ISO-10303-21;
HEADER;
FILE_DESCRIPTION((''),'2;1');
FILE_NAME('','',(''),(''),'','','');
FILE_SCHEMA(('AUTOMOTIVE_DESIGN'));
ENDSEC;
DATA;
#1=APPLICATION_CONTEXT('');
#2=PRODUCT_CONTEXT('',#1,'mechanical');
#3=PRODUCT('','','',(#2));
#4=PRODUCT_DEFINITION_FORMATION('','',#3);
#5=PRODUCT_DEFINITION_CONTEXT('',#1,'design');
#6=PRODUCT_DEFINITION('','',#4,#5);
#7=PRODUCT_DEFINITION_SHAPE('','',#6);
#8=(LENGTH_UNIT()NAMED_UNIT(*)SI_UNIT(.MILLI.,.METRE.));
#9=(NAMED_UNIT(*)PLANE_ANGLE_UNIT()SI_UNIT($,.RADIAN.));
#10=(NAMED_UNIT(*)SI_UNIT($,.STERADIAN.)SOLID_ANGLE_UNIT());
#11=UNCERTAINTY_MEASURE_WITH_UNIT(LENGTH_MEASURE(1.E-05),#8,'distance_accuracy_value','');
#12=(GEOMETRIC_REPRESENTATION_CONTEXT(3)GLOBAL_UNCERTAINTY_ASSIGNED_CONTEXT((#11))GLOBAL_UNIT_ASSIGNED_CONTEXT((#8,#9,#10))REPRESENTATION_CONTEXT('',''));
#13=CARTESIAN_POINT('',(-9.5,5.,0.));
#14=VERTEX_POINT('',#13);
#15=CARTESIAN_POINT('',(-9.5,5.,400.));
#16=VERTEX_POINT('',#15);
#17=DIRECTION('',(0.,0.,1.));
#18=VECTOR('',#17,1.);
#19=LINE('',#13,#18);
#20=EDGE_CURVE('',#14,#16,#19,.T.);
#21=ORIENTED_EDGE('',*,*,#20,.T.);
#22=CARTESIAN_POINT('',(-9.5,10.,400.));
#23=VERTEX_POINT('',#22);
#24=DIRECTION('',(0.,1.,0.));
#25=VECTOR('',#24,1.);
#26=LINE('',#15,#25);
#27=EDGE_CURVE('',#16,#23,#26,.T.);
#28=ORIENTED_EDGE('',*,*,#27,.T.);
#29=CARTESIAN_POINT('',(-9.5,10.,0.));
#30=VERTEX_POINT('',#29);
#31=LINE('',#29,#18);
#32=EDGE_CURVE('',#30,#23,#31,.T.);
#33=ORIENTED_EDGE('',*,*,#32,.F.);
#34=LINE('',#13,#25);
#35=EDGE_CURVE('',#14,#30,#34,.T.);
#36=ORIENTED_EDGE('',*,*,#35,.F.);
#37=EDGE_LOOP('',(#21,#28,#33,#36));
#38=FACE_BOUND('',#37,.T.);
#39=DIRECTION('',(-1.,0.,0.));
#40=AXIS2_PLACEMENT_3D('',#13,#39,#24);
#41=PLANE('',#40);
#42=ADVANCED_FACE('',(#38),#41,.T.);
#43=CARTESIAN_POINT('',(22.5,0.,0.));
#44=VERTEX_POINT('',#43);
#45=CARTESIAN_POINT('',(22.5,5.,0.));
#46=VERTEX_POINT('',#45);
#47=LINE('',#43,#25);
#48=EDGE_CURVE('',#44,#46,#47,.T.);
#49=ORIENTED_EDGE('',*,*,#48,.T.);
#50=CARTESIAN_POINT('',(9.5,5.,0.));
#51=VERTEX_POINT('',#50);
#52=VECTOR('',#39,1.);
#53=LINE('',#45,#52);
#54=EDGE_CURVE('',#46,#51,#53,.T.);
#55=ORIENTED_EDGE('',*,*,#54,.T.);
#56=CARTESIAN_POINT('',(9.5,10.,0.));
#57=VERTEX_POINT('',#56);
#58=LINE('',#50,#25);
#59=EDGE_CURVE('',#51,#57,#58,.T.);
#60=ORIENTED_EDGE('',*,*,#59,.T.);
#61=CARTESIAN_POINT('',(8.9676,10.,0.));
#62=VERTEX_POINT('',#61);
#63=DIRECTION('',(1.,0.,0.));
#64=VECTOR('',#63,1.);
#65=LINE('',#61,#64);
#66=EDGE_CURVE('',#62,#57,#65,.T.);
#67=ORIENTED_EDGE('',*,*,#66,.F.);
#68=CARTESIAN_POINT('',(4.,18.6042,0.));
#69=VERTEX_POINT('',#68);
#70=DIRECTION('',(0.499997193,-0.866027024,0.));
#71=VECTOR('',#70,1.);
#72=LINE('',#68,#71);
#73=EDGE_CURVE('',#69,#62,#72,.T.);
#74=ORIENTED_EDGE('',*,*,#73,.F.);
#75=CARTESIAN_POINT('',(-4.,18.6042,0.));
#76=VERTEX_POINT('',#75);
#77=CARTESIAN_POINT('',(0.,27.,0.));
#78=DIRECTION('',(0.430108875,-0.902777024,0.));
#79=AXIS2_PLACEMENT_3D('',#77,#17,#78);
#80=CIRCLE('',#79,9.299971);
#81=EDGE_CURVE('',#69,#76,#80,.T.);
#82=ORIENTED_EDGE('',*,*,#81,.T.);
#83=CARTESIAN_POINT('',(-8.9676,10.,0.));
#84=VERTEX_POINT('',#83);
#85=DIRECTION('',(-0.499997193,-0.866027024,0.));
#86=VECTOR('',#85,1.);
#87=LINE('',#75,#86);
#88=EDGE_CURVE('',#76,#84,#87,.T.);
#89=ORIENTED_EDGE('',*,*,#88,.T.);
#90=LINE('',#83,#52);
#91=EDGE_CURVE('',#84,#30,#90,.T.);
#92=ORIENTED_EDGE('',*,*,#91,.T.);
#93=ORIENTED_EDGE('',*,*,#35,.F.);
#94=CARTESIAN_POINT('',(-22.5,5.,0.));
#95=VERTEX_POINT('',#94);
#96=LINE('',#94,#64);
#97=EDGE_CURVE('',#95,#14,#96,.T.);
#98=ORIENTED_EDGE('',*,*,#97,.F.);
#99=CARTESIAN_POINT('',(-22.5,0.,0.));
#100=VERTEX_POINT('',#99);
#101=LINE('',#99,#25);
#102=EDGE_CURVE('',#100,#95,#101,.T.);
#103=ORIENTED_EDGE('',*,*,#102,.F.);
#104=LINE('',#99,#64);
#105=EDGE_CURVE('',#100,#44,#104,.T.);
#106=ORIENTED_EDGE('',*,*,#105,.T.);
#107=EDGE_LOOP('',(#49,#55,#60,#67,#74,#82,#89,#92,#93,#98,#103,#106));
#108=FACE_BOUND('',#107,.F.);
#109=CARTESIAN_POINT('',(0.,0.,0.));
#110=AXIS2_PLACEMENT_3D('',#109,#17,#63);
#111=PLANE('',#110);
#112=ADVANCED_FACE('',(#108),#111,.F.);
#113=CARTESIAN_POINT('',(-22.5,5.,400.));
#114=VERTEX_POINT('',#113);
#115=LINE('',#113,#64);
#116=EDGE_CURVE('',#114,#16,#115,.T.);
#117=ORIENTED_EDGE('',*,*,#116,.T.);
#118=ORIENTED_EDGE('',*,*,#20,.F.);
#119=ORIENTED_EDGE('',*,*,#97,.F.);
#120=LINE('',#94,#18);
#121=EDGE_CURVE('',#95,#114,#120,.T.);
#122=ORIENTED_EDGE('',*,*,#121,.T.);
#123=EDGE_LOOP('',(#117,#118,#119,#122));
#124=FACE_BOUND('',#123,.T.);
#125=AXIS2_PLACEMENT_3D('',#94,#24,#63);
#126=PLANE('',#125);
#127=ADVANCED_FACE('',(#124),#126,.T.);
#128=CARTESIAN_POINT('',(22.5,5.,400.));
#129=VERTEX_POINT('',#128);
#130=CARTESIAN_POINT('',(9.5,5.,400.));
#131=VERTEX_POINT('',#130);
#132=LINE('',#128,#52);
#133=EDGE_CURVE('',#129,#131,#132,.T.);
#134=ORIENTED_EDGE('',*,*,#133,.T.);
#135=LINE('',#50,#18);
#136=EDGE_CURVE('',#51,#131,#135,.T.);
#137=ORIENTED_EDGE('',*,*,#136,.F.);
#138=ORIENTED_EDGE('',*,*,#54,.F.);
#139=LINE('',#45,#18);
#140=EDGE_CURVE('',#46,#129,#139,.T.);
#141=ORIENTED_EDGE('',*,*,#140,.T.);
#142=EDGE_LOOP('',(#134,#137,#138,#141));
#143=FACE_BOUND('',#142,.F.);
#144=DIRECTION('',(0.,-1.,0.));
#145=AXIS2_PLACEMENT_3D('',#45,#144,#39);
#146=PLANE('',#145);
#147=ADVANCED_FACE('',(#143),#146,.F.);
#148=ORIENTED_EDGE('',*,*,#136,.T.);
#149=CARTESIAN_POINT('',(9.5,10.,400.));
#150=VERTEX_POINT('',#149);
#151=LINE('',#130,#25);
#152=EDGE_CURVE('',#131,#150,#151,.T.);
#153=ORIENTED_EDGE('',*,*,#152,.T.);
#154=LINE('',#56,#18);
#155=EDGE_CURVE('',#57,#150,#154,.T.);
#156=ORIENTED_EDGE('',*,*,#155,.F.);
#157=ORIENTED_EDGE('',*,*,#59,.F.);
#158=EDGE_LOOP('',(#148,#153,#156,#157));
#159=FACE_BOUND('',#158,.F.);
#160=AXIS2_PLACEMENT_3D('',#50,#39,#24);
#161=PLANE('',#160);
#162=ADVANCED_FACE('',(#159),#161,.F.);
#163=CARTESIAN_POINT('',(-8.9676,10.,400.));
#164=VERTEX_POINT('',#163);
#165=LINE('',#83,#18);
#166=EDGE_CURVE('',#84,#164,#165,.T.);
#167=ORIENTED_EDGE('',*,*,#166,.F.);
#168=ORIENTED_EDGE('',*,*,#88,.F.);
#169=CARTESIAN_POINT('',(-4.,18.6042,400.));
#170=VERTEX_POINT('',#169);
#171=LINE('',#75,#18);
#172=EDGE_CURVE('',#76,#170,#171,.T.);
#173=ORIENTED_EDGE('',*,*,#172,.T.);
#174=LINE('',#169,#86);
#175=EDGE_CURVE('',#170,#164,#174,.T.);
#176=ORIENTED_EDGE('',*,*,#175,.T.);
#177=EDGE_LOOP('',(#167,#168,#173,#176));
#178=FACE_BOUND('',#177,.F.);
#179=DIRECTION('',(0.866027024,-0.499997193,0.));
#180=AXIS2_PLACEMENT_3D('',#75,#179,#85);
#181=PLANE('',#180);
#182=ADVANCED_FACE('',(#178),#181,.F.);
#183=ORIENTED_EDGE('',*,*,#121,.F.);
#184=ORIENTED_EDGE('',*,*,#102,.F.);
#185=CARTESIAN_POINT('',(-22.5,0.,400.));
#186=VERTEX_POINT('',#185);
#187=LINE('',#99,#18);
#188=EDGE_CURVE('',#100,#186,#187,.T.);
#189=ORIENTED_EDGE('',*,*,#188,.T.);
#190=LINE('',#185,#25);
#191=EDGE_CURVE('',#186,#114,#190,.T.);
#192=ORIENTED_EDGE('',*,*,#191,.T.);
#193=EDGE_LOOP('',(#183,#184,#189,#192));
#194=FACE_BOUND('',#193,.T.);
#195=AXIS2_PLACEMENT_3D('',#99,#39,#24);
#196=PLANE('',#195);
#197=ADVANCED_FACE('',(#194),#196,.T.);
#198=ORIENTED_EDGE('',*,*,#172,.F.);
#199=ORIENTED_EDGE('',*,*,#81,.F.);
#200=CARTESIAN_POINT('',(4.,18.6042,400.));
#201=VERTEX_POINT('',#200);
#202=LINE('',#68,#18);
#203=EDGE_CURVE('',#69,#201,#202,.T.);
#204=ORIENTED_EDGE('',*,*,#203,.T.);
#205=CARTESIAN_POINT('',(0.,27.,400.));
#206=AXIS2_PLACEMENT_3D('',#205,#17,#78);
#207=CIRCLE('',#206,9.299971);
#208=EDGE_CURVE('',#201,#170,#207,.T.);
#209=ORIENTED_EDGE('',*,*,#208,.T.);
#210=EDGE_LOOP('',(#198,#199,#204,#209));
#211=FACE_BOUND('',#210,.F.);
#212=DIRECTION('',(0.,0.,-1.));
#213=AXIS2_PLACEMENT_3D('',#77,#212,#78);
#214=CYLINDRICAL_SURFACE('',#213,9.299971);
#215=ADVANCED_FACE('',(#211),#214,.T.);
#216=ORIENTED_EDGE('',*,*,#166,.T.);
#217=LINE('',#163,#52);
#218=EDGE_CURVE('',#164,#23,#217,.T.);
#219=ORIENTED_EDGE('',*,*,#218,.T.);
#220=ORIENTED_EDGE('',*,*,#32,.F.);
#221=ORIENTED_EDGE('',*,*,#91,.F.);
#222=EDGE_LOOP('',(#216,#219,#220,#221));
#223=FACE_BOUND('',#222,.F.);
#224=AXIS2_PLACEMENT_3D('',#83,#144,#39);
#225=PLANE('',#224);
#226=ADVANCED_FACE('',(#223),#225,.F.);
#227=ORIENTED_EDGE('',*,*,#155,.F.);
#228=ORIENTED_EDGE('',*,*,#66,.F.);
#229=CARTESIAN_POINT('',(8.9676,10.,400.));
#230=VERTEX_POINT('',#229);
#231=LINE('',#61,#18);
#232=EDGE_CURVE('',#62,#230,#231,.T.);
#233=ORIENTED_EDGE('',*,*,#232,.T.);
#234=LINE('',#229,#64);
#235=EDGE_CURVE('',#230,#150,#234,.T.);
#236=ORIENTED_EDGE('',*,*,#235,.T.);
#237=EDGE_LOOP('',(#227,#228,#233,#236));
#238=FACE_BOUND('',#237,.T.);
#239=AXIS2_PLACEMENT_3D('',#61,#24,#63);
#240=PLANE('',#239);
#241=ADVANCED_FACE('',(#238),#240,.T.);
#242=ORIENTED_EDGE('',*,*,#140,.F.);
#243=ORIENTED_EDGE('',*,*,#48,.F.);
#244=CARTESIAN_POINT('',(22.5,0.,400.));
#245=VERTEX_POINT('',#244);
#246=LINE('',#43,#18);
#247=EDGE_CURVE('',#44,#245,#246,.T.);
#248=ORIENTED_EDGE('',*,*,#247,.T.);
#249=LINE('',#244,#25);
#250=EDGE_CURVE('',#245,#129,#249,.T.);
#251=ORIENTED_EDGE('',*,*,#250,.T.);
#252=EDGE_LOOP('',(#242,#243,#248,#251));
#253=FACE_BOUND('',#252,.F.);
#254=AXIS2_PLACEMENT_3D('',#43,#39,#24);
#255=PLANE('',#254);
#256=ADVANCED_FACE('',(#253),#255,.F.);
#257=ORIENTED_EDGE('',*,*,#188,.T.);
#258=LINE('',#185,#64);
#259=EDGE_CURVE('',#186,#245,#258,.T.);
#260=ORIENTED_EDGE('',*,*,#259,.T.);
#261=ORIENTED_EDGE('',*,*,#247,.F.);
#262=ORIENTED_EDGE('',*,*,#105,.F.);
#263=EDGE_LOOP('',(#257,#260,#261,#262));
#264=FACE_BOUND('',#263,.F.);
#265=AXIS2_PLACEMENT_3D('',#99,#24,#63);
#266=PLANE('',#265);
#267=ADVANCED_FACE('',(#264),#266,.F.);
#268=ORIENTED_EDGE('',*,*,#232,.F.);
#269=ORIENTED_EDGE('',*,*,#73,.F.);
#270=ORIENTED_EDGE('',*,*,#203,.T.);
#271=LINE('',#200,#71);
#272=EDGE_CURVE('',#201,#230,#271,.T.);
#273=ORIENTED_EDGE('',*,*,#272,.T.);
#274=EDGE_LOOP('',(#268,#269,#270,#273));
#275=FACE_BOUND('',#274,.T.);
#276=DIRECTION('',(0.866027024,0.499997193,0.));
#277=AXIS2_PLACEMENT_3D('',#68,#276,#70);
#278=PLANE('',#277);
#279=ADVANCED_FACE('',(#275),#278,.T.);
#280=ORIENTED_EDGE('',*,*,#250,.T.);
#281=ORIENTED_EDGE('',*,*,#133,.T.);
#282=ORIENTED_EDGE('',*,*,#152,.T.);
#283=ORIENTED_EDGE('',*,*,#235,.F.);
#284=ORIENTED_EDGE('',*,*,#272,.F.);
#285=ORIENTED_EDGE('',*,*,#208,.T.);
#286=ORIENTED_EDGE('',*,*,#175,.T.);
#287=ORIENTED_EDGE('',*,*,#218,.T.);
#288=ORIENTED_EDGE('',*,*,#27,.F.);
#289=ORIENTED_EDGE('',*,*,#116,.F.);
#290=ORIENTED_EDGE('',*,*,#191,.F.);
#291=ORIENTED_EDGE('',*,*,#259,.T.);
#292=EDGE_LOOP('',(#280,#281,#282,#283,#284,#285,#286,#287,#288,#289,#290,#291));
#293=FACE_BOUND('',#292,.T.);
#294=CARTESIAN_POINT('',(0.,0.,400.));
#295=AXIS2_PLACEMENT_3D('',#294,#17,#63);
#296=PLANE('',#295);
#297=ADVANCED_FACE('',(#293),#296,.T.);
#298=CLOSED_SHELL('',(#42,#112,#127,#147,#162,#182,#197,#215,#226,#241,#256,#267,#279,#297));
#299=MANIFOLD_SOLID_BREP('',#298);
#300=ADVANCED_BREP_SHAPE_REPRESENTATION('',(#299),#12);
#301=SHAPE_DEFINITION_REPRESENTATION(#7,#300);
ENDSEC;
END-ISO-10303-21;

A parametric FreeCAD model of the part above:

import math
import FreeCAD as App
import Part
import Sketcher

V = App.Vector
Q = App.Units.Quantity

doc = App.newDocument("Part")
body = doc.addObject("PartDesign::Body", "Body")

# Sketch on XY plane
sketch1 = doc.addObject("Sketcher::SketchObject", "Sketch")
body.addObject(sketch1)
sketch1.AttachmentSupport = (doc.XY_Plane, [""])
sketch1.MapMode = "FlatFace"
sketch1.addGeometry([
    Part.LineSegment(V(-22.5, 5, 0), V(-22.5, 0, 0)),  # 0
    Part.LineSegment(V(-22.5, 0, 0), V(22.5, 0, 0)),  # 1
    Part.LineSegment(V(22.5, 0, 0), V(22.5, 5, 0)),  # 2
    Part.LineSegment(V(22.5, 5, 0), V(9.5, 5, 0)),  # 3
    Part.LineSegment(V(9.5, 5, 0), V(9.5, 10, 0)),  # 4
    Part.LineSegment(V(9.5, 10, 0), V(9, 10, 0)),  # 5
    Part.LineSegment(V(9, 10, 0), V(4, 18.6, 0)),  # 6
    Part.ArcOfCircle(Part.Circle(V(0, 27, 0), V(0, 0, 1), 9.3), math.radians(-65), math.radians(245)),  # 7
    Part.LineSegment(V(-4, 18.6, 0), V(-9, 10, 0)),  # 8
    Part.LineSegment(V(-9, 10, 0), V(-9.5, 10, 0)),  # 9
    Part.LineSegment(V(-9.5, 10, 0), V(-9.5, 5, 0)),  # 10
    Part.LineSegment(V(-9.5, 5, 0), V(-22.5, 5, 0)),  # 11
], False)
sketch1.addConstraint([
    Sketcher.Constraint("Coincident", 0, 2, 1, 1),
    Sketcher.Constraint("Coincident", 1, 2, 2, 1),
    Sketcher.Constraint("Coincident", 2, 2, 3, 1),
    Sketcher.Constraint("Coincident", 3, 2, 4, 1),
    Sketcher.Constraint("Coincident", 4, 2, 5, 1),
    Sketcher.Constraint("Coincident", 5, 2, 6, 1),
    Sketcher.Constraint("Coincident", 6, 2, 7, 1),
    Sketcher.Constraint("Coincident", 7, 2, 8, 1),
    Sketcher.Constraint("Coincident", 8, 2, 9, 1),
    Sketcher.Constraint("Coincident", 9, 2, 10, 1),
    Sketcher.Constraint("Coincident", 10, 2, 11, 1),
    Sketcher.Constraint("Coincident", 11, 2, 0, 1),
    Sketcher.Constraint("Vertical", 0),
    Sketcher.Constraint("Horizontal", 1),
    Sketcher.Constraint("Vertical", 2),
    Sketcher.Constraint("Horizontal", 3),
    Sketcher.Constraint("Vertical", 4),
    Sketcher.Constraint("Horizontal", 5),
    Sketcher.Constraint("Horizontal", 9),
    Sketcher.Constraint("Vertical", 10),
    Sketcher.Constraint("Horizontal", 11),
    Sketcher.Constraint("Symmetric", 0, 2, 1, 2, -1, 1),
    Sketcher.Constraint("Symmetric", 6, 2, 7, 2, -2),
    Sketcher.Constraint("Symmetric", 5, 2, 8, 2, -2),
    Sketcher.Constraint("Symmetric", 3, 2, 10, 2, -2),
    Sketcher.Constraint("Equal", 2, 4),
    Sketcher.Constraint("Radius", 7, 9.3),
    Sketcher.Constraint("DistanceX", 1, 1, 1, 2, 45.0),
    Sketcher.Constraint("DistanceX", 3, 2, 3, 1, 13.0),
    Sketcher.Constraint("DistanceY", 0, 2, 0, 1, 5.0),
    Sketcher.Constraint("DistanceY", -1, 1, 7, 3, 27.0),
    Sketcher.Constraint("DistanceX", -1, 1, 6, 2, 4.0),
    Sketcher.Constraint("Angle", 6, Q("119.9998 deg")),
])
pad1 = doc.addObject("PartDesign::Pad", "Pad")
body.addObject(pad1)
pad1.Profile = sketch1
pad1.Length = 400

doc.recompute()
